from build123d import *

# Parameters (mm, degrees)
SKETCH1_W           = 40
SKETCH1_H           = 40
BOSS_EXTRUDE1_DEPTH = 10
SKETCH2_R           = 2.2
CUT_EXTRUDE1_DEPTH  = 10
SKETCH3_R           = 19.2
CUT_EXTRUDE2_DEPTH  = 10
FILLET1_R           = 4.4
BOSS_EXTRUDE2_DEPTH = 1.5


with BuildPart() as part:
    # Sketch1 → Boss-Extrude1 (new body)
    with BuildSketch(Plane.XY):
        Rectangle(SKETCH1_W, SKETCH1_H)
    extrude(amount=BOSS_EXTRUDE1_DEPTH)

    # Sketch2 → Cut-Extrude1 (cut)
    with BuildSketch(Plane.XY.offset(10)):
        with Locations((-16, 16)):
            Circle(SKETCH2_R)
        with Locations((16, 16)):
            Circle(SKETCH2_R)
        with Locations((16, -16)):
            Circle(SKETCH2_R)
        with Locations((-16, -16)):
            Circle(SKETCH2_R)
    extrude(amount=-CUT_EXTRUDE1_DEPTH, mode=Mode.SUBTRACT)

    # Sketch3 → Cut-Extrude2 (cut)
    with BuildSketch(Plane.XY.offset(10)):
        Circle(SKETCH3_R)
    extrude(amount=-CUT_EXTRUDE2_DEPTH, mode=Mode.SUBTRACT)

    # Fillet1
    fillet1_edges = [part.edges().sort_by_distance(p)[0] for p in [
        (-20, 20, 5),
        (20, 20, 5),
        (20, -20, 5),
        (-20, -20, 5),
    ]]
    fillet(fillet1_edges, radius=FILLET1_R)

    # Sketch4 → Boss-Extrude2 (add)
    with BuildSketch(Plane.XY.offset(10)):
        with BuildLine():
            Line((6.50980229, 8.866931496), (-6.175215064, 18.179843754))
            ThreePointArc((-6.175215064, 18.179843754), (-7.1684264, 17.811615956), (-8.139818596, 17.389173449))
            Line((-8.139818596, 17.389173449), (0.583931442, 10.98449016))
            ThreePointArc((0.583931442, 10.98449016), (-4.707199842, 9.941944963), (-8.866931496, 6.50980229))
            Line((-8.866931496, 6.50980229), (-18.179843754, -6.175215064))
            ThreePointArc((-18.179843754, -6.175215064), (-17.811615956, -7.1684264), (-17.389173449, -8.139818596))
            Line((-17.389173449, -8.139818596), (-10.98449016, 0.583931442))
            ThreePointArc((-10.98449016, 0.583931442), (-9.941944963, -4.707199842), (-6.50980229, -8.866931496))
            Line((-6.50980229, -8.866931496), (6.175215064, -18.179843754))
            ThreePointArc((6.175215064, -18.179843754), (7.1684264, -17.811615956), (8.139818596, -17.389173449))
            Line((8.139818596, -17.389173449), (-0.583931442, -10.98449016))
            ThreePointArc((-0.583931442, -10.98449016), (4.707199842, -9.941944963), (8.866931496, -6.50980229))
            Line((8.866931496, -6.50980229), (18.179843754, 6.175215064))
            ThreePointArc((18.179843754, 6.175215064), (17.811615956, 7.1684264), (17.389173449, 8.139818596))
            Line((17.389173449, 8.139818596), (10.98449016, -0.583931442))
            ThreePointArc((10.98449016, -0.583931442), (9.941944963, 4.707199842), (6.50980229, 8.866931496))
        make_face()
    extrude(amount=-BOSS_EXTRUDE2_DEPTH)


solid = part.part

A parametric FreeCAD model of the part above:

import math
import FreeCAD as App
import Part
import Sketcher
from FreeCAD import Vector


def edges_at(feature, points):
    """Names of the edges that pass closest to the given points."""
    edges = feature.Shape.Edges
    near = lambda p: min(range(len(edges)), key=lambda i: edges[i].distToShape(Part.Vertex(*p))[0])
    return sorted({f"Edge{near(p) + 1}" for p in points})

doc = App.newDocument("Part")
body = doc.addObject("PartDesign::Body", "Body")

# Sketch on XY plane
sketch1 = doc.addObject("Sketcher::SketchObject", "Sketch")
body.addObject(sketch1)
sketch1.AttachmentSupport = (doc.XY_Plane, [""])
sketch1.MapMode = "FlatFace"
sketch1.addGeometry(Part.LineSegment(Vector(-20, 20, 0), Vector(-20, -20, 0)), False)
sketch1.addGeometry(Part.LineSegment(Vector(-20, -20, 0), Vector(20, -20, 0)), False)
sketch1.addGeometry(Part.LineSegment(Vector(20, -20, 0), Vector(20, 20, 0)), False)
sketch1.addGeometry(Part.LineSegment(Vector(20, 20, 0), Vector(-20, 20, 0)), False)
sketch1.addConstraint(Sketcher.Constraint("Coincident", 0, 2, 1, 1))
sketch1.addConstraint(Sketcher.Constraint("Coincident", 1, 2, 2, 1))
sketch1.addConstraint(Sketcher.Constraint("Coincident", 2, 2, 3, 1))
sketch1.addConstraint(Sketcher.Constraint("Coincident", 3, 2, 0, 1))
sketch1.addConstraint(Sketcher.Constraint("Vertical", 0))
sketch1.addConstraint(Sketcher.Constraint("Horizontal", 1))
sketch1.addConstraint(Sketcher.Constraint("Vertical", 2))
sketch1.addConstraint(Sketcher.Constraint("Horizontal", 3))
sketch1.addConstraint(Sketcher.Constraint("Symmetric", 0, 2, 2, 2, -1, 1))
sketch1.addConstraint(Sketcher.Constraint("Equal", 3, 0))
sketch1.addConstraint(Sketcher.Constraint("DistanceX", 1, 1, 1, 2, 40.0))
pad1 = doc.addObject("PartDesign::Pad", "Pad")
body.addObject(pad1)
pad1.Profile = sketch1
pad1.Length = 10

# Sketch on XY plane
sketch2 = doc.addObject("Sketcher::SketchObject", "Sketch001")
body.addObject(sketch2)
sketch2.AttachmentSupport = (doc.XY_Plane, [""])
sketch2.MapMode = "FlatFace"
sketch2.AttachmentOffset = App.Placement(Vector(0, 0, 10), App.Rotation())
sketch2.addGeometry(Part.Circle(Vector(-16, 16, 0), Vector(0, 0, 1), 2.2), False)
sketch2.addGeometry(Part.Circle(Vector(16, 16, 0), Vector(0, 0, 1), 2.2), False)
sketch2.addGeometry(Part.Circle(Vector(16, -16, 0), Vector(0, 0, 1), 2.2), False)
sketch2.addGeometry(Part.Circle(Vector(-16, -16, 0), Vector(0, 0, 1), 2.2), False)
sketch2.addConstraint(Sketcher.Constraint("Equal", 0, 1))
sketch2.addConstraint(Sketcher.Constraint("Equal", 1, 2))
sketch2.addConstraint(Sketcher.Constraint("Equal", 2, 3))
sketch2.addConstraint(Sketcher.Constraint("Symmetric", 0, 3, 2, 3, -1, 1))
sketch2.addConstraint(Sketcher.Constraint("Symmetric", 1, 3, 3, 3, -1, 1))
sketch2.addConstraint(Sketcher.Constraint("Symmetric", 0, 3, 1, 3, -2))
sketch2.addConstraint(Sketcher.Constraint("Diameter", 0, 4.4))
sketch2.addConstraint(Sketcher.Constraint("DistanceX", 0, 3, -1, 1, 16.0))
sketch2.addConstraint(Sketcher.Constraint("DistanceY", -1, 1, 0, 3, 16.0))
pocket1 = doc.addObject("PartDesign::Pocket", "Pocket")
body.addObject(pocket1)
pocket1.Profile = sketch2
pocket1.Length = 10

# Sketch on XY plane
sketch3 = doc.addObject("Sketcher::SketchObject", "Sketch002")
body.addObject(sketch3)
sketch3.AttachmentSupport = (doc.XY_Plane, [""])
sketch3.MapMode = "FlatFace"
sketch3.AttachmentOffset = App.Placement(Vector(0, 0, 10), App.Rotation())
sketch3.addGeometry(Part.Circle(Vector(0, 0, 0), Vector(0, 0, 1), 19.2), False)
sketch3.addConstraint(Sketcher.Constraint("Coincident", 0, 3, -1, 1))
sketch3.addConstraint(Sketcher.Constraint("Diameter", 0, 38.4))
pocket2 = doc.addObject("PartDesign::Pocket", "Pocket001")
body.addObject(pocket2)
pocket2.Profile = sketch3
pocket2.Length = 10
doc.recompute()

fillet = doc.addObject("PartDesign::Fillet", "Fillet")
body.addObject(fillet)
fillet.Base = (pocket2, edges_at(pocket2, [
    (-20, 20, 5),
    (20, 20, 5),
    (20, -20, 5),
    (-20, -20, 5),
]))
fillet.Radius = 4.4

# Sketch on XY plane
sketch4 = doc.addObject("Sketcher::SketchObject", "Sketch003")
body.addObject(sketch4)
sketch4.AttachmentSupport = (doc.XY_Plane, [""])
sketch4.MapMode = "FlatFace"
sketch4.AttachmentOffset = App.Placement(Vector(0, 0, 10), App.Rotation())
sketch4.addGeometry(Part.LineSegment(Vector(6.509802, 8.866931, 0), Vector(-6.175215, 18.179844, 0)), False)
sketch4.addGeometry(Part.ArcOfCircle(Part.Circle(Vector(0, 0, 0), Vector(0, 0, 1), 19.2), math.radians(108.761274), math.radians(115.084149)), False)
sketch4.addGeometry(Part.LineSegment(Vector(-8.139819, 17.389173, 0), Vector(0.583931, 10.98449, 0)), False)
sketch4.addGeometry(Part.ArcOfCircle(Part.Circle(Vector(0, 0, 0), Vector(0, 0, 1), 11), math.radians(86.957042), math.radians(143.715139)), False)
sketch4.addGeometry(Part.LineSegment(Vector(-8.866931, 6.509802, 0), Vector(-18.179844, -6.175215, 0)), False)
sketch4.addGeometry(Part.ArcOfCircle(Part.Circle(Vector(0, 0, 0), Vector(0, 0, 1), 19.2), math.radians(-161.238726), math.radians(-154.915851)), False)
sketch4.addGeometry(Part.LineSegment(Vector(-17.389173, -8.139819, 0), Vector(-10.98449, 0.583931, 0)), False)
sketch4.addGeometry(Part.ArcOfCircle(Part.Circle(Vector(0, 0, 0), Vector(0, 0, 1), 11), math.radians(176.957042), math.radians(233.715139)), False)
sketch4.addGeometry(Part.LineSegment(Vector(-6.509802, -8.866931, 0), Vector(6.175215, -18.179844, 0)), False)
sketch4.addGeometry(Part.ArcOfCircle(Part.Circle(Vector(0, 0, 0), Vector(0, 0, 1), 19.2), math.radians(-71.238726), math.radians(-64.915851)), False)
sketch4.addGeometry(Part.LineSegment(Vector(8.139819, -17.389173, 0), Vector(-0.583931, -10.98449, 0)), False)
sketch4.addGeometry(Part.ArcOfCircle(Part.Circle(Vector(0, 0, 0), Vector(0, 0, 1), 11), math.radians(-93.042958), math.radians(-36.284861)), False)
sketch4.addGeometry(Part.LineSegment(Vector(8.866931, -6.509802, 0), Vector(18.179844, 6.175215, 0)), False)
sketch4.addGeometry(Part.ArcOfCircle(Part.Circle(Vector(0, 0, 0), Vector(0, 0, 1), 19.2), math.radians(18.761274), math.radians(25.084149)), False)
sketch4.addGeometry(Part.LineSegment(Vector(17.389173, 8.139819, 0), Vector(10.98449, -0.583931, 0)), False)
sketch4.addGeometry(Part.ArcOfCircle(Part.Circle(Vector(0, 0, 0), Vector(0, 0, 1), 11), math.radians(-3.042958), math.radians(53.715139)), False)
sketch4.addConstraint(Sketcher.Constraint("Coincident", 0, 2, 1, 1))
sketch4.addConstraint(Sketcher.Constraint("Coincident", 1, 2, 2, 1))
sketch4.addConstraint(Sketcher.Constraint("Coincident", 2, 2, 3, 1))
sketch4.addConstraint(Sketcher.Constraint("Tangent", 3, 2, 4, 1))
sketch4.addConstraint(Sketcher.Constraint("Coincident", 4, 2, 5, 1))
sketch4.addConstraint(Sketcher.Constraint("Coincident", 5, 2, 6, 1))
sketch4.addConstraint(Sketcher.Constraint("Coincident", 6, 2, 7, 1))
sketch4.addConstraint(Sketcher.Constraint("Tangent", 7, 2, 8, 1))
sketch4.addConstraint(Sketcher.Constraint("Coincident", 8, 2, 9, 1))
sketch4.addConstraint(Sketcher.Constraint("Coincident", 9, 2, 10, 1))
sketch4.addConstraint(Sketcher.Constraint("Coincident", 10, 2, 11, 1))
sketch4.addConstraint(Sketcher.Constraint("Tangent", 11, 2, 12, 1))
sketch4.addConstraint(Sketcher.Constraint("Coincident", 12, 2, 13, 1))
sketch4.addConstraint(Sketcher.Constraint("Coincident", 13, 2, 14, 1))
sketch4.addConstraint(Sketcher.Constraint("Coincident", 14, 2, 15, 1))
sketch4.addConstraint(Sketcher.Constraint("Tangent", 15, 2, 0, 1))
sketch4.addConstraint(Sketcher.Constraint("Coincident", 1, 3, -1, 1))
sketch4.addConstraint(Sketcher.Constraint("Coincident", 3, 3, -1, 1))
sketch4.addConstraint(Sketcher.Constraint("Coincident", 5, 3, -1, 1))
sketch4.addConstraint(Sketcher.Constraint("Coincident", 7, 3, -1, 1))
sketch4.addConstraint(Sketcher.Constraint("Coincident", 9, 3, -1, 1))
sketch4.addConstraint(Sketcher.Constraint("Coincident", 11, 3, -1, 1))
sketch4.addConstraint(Sketcher.Constraint("Coincident", 13, 3, -1, 1))
sketch4.addConstraint(Sketcher.Constraint("Coincident", 15, 3, -1, 1))
sketch4.addConstraint(Sketcher.Constraint("Equal", 1, 5))
sketch4.addConstraint(Sketcher.Constraint("Equal", 3, 7))
sketch4.addConstraint(Sketcher.Constraint("Equal", 5, 9))
sketch4.addConstraint(Sketcher.Constraint("Equal", 7, 11))
sketch4.addConstraint(Sketcher.Constraint("Equal", 9, 13))
sketch4.addConstraint(Sketcher.Constraint("Equal", 11, 15))
sketch4.addConstraint(Sketcher.Constraint("Parallel", 0, 2))
sketch4.addConstraint(Sketcher.Constraint("Perpendicular", 2, 4))
sketch4.addConstraint(Sketcher.Constraint("Parallel", 4, 6))
sketch4.addConstraint(Sketcher.Constraint("Perpendicular", 6, 8))
sketch4.addConstraint(Sketcher.Constraint("Parallel", 8, 10))
sketch4.addConstraint(Sketcher.Constraint("Perpendicular", 10, 12))
sketch4.addConstraint(Sketcher.Constraint("Parallel", 12, 14))
sketch4.addConstraint(Sketcher.Constraint("Equal", 2, 6))
sketch4.addConstraint(Sketcher.Constraint("Equal", 6, 10))
sketch4.addConstraint(Sketcher.Constraint("Equal", 10, 14))
sketch4.addConstraint(Sketcher.Constraint("Radius", 3, 11.0))
sketch4.addConstraint(Sketcher.Constraint("Radius", 1, 19.2))
sketch4.addConstraint(Sketcher.Constraint("DistanceX", 1, 2, -1, 1, 8.139819))
sketch4.addConstraint(Sketcher.Constraint("DistanceX", -1, 1, 2, 2, 0.583931))
pad2 = doc.addObject("PartDesign::Pad", "Pad001")
body.addObject(pad2)
pad2.Profile = sketch4
pad2.Length = 1.5
pad2.Reversed = True

doc.recompute()
